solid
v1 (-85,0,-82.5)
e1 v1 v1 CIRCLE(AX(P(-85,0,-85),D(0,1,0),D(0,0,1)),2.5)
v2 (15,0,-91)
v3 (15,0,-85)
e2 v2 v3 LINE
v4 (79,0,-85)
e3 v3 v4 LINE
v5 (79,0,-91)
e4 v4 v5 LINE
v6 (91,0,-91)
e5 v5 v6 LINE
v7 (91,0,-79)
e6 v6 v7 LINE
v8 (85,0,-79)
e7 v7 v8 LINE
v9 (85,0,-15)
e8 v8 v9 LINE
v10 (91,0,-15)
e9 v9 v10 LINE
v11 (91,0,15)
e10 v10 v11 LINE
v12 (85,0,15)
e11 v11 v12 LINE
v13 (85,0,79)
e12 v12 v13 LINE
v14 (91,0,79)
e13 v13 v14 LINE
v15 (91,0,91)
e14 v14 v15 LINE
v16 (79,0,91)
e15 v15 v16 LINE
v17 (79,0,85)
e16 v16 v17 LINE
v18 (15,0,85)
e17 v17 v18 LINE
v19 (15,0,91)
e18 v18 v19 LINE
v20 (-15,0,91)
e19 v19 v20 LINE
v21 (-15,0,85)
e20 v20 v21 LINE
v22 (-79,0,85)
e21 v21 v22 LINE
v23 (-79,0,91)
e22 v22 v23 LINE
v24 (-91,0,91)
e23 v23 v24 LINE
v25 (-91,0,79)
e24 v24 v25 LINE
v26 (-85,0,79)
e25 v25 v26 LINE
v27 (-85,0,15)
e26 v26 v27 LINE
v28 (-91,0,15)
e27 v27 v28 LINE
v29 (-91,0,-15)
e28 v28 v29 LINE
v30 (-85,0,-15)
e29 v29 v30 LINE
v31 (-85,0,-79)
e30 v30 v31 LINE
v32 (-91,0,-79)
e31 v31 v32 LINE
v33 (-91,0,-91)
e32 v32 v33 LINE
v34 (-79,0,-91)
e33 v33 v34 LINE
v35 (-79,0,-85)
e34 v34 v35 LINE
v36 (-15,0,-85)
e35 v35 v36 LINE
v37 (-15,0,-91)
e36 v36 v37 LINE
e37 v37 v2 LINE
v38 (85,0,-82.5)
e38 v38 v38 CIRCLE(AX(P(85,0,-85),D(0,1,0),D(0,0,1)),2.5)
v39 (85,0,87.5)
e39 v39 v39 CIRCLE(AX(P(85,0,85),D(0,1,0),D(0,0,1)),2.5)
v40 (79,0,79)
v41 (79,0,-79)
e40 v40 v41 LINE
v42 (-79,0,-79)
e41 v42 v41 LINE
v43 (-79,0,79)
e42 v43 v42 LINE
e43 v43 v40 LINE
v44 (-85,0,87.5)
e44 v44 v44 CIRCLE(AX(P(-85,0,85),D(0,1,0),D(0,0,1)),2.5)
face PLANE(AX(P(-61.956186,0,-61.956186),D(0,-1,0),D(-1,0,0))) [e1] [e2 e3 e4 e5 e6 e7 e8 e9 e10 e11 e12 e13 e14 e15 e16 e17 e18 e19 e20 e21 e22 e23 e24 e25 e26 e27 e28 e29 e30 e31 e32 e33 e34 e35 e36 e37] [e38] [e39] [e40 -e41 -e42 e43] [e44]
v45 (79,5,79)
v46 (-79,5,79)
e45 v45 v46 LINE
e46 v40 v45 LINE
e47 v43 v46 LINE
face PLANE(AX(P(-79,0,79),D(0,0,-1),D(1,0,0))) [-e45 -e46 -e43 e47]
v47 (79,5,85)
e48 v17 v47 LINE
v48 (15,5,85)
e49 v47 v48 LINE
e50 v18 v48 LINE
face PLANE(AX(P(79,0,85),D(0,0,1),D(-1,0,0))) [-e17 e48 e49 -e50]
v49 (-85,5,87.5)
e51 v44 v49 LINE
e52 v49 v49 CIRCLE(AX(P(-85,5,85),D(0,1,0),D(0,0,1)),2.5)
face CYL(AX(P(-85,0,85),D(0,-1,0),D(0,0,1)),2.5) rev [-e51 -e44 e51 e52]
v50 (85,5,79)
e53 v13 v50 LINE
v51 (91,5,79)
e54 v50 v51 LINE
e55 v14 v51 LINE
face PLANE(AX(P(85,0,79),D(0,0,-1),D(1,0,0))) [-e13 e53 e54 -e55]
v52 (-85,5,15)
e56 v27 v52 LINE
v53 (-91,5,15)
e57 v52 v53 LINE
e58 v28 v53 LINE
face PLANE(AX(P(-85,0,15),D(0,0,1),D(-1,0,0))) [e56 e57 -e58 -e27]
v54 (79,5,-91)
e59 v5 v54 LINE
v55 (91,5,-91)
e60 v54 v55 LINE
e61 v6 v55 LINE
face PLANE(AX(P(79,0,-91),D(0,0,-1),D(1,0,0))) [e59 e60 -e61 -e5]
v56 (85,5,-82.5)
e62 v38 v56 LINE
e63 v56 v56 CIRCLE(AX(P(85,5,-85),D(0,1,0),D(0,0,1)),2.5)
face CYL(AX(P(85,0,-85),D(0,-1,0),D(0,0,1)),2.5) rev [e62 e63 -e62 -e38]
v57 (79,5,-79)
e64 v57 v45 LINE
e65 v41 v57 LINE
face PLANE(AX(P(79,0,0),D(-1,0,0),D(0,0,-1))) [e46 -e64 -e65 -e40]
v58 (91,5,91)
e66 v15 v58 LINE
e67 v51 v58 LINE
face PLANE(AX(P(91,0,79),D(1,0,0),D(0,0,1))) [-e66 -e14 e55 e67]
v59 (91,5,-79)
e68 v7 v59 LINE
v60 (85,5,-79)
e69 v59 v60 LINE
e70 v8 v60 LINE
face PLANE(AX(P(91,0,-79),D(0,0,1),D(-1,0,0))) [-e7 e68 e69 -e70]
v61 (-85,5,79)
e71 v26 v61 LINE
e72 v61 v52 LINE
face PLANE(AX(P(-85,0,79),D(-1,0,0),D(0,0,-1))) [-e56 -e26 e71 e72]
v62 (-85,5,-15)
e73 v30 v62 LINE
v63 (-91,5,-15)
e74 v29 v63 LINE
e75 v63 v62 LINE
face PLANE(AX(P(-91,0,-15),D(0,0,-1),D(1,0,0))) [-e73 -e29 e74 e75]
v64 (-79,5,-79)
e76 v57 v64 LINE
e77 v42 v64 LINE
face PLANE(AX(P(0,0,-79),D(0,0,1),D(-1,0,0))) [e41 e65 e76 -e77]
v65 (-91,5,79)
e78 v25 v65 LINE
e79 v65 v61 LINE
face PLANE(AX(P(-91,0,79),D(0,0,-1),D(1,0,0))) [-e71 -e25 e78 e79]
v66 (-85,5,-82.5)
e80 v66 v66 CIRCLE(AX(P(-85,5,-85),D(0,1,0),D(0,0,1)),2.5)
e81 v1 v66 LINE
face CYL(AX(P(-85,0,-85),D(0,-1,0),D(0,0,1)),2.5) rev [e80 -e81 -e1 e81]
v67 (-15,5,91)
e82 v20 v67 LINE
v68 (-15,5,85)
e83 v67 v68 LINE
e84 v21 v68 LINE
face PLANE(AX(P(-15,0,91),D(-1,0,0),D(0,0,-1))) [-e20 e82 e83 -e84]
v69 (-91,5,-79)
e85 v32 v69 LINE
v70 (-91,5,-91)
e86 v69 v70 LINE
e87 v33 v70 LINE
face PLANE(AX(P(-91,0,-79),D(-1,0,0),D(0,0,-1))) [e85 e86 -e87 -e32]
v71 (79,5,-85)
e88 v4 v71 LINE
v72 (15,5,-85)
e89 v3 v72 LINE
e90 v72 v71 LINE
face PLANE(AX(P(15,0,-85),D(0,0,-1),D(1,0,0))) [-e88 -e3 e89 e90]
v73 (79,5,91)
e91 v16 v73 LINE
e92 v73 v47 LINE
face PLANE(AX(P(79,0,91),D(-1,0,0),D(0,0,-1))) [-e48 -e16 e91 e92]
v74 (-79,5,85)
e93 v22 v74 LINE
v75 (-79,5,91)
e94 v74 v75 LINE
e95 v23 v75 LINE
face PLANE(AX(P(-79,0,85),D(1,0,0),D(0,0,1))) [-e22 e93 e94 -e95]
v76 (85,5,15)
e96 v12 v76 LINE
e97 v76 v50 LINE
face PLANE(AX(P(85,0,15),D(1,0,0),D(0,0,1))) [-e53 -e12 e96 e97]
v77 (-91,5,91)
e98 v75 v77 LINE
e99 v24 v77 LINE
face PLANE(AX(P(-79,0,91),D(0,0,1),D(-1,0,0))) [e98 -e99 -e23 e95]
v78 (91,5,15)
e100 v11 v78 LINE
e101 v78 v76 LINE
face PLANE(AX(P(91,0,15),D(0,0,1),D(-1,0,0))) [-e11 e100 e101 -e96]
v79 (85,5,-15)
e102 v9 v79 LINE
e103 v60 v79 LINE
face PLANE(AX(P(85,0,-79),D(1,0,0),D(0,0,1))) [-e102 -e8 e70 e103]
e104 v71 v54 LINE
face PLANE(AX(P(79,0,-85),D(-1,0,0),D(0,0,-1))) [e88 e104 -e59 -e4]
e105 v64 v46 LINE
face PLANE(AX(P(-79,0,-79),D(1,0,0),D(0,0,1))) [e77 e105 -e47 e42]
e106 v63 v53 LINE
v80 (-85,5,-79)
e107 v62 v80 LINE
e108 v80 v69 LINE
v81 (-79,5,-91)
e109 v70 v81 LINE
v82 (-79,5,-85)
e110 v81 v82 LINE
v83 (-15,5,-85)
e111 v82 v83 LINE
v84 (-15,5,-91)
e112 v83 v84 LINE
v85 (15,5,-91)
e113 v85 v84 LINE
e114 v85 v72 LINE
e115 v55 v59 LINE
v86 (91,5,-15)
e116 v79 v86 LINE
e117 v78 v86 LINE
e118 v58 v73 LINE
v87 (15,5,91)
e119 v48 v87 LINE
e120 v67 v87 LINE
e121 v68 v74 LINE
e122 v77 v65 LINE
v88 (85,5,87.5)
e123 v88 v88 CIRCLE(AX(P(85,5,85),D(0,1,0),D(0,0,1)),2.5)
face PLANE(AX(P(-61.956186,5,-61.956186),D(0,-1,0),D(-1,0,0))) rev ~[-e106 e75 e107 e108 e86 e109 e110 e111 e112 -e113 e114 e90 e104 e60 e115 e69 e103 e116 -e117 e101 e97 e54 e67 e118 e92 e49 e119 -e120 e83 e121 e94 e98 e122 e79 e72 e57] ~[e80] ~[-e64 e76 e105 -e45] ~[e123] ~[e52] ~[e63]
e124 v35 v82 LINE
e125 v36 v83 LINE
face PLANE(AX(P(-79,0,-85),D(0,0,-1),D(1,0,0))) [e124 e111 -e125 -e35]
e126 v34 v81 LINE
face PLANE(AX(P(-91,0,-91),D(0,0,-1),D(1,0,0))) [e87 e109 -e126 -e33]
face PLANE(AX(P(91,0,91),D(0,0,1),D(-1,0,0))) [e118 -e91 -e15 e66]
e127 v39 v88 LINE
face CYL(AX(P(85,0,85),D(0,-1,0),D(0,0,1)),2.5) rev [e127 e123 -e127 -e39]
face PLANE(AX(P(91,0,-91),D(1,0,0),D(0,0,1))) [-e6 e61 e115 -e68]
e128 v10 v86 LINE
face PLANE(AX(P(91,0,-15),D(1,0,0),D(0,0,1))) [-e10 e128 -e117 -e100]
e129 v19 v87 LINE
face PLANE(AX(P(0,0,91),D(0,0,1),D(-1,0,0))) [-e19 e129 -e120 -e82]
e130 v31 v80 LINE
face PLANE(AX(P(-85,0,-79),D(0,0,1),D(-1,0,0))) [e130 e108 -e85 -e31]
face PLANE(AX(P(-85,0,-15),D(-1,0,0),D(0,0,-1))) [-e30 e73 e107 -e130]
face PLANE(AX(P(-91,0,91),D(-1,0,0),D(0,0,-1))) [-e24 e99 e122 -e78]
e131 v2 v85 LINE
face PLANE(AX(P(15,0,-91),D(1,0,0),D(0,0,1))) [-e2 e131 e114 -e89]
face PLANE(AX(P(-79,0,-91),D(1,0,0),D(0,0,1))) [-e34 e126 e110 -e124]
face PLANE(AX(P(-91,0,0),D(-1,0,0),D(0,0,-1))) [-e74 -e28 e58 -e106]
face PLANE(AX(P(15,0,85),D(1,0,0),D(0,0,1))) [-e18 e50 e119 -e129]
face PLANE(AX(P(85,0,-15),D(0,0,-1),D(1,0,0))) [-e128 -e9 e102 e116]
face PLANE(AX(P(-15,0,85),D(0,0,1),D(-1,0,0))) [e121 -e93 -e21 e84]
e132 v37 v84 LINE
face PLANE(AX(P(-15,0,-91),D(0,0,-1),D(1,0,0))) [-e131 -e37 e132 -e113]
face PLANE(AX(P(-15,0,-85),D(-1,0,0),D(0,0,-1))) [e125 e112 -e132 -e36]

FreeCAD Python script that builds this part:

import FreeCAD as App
import Part
import Sketcher
from FreeCAD import Vector

doc = App.newDocument("Part")
body = doc.addObject("PartDesign::Body", "Body")

sketch1 = doc.addObject("Sketcher::SketchObject", "Sketch")
body.addObject(sketch1)
sketch1.AttachmentSupport = (doc.XZ_Plane, [""])
sketch1.MapMode = "FlatFace"
sketch1.addGeometry([
    Part.LineSegment(Vector(15, -91, 0), Vector(-15, -91, 0)),
    Part.LineSegment(Vector(-15, -91, 0), Vector(-15, -85, 0)),
    Part.LineSegment(Vector(-15, -85, 0), Vector(-79, -85, 0)),
    Part.LineSegment(Vector(-79, -85, 0), Vector(-79, -91, 0)),
    Part.LineSegment(Vector(-79, -91, 0), Vector(-91, -91, 0)),
    Part.LineSegment(Vector(-91, -91, 0), Vector(-91, -79, 0)),
    Part.LineSegment(Vector(-91, -79, 0), Vector(-85, -79, 0)),
    Part.LineSegment(Vector(-85, -79, 0), Vector(-85, -15, 0)),
    Part.LineSegment(Vector(-85, -15, 0), Vector(-91, -15, 0)),
    Part.LineSegment(Vector(-91, -15, 0), Vector(-91, 15, 0)),
    Part.LineSegment(Vector(-91, 15, 0), Vector(-85, 15, 0)),
    Part.LineSegment(Vector(-85, 15, 0), Vector(-85, 79, 0)),
    Part.LineSegment(Vector(-85, 79, 0), Vector(-91, 79, 0)),
    Part.LineSegment(Vector(-91, 79, 0), Vector(-91, 91, 0)),
    Part.LineSegment(Vector(-91, 91, 0), Vector(-79, 91, 0)),
    Part.LineSegment(Vector(-79, 91, 0), Vector(-79, 85, 0)),
    Part.LineSegment(Vector(-79, 85, 0), Vector(-15, 85, 0)),
    Part.LineSegment(Vector(-15, 85, 0), Vector(-15, 91, 0)),
    Part.LineSegment(Vector(-15, 91, 0), Vector(15, 91, 0)),
    Part.LineSegment(Vector(15, 91, 0), Vector(15, 85, 0)),
    Part.LineSegment(Vector(15, 85, 0), Vector(79, 85, 0)),
    Part.LineSegment(Vector(79, 85, 0), Vector(79, 91, 0)),
    Part.LineSegment(Vector(79, 91, 0), Vector(91, 91, 0)),
    Part.LineSegment(Vector(91, 91, 0), Vector(91, 79, 0)),
    Part.LineSegment(Vector(91, 79, 0), Vector(85, 79, 0)),
    Part.LineSegment(Vector(85, 79, 0), Vector(85, 15, 0)),
    Part.LineSegment(Vector(85, 15, 0), Vector(91, 15, 0)),
    Part.LineSegment(Vector(91, 15, 0), Vector(91, -15, 0)),
    Part.LineSegment(Vector(91, -15, 0), Vector(85, -15, 0)),
    Part.LineSegment(Vector(85, -15, 0), Vector(85, -79, 0)),
    Part.LineSegment(Vector(85, -79, 0), Vector(91, -79, 0)),
    Part.LineSegment(Vector(91, -79, 0), Vector(91, -91, 0)),
    Part.LineSegment(Vector(91, -91, 0), Vector(79, -91, 0)),
    Part.LineSegment(Vector(79, -91, 0), Vector(79, -85, 0)),
    Part.LineSegment(Vector(79, -85, 0), Vector(15, -85, 0)),
    Part.LineSegment(Vector(15, -85, 0), Vector(15, -91, 0)),
    Part.LineSegment(Vector(-79, -79, 0), Vector(79, -79, 0)),
    Part.LineSegment(Vector(79, -79, 0), Vector(79, 79, 0)),
    Part.LineSegment(Vector(79, 79, 0), Vector(-79, 79, 0)),
    Part.LineSegment(Vector(-79, 79, 0), Vector(-79, -79, 0)),
    Part.Circle(Vector(85, -85, 0), Vector(0, 0, 1), 2.5),
    Part.Circle(Vector(-85, -85, 0), Vector(0, 0, 1), 2.5),
    Part.Circle(Vector(85, 85, 0), Vector(0, 0, 1), 2.5),
    Part.Circle(Vector(-85, 85, 0), Vector(0, 0, 1), 2.5),
], False)
sketch1.addConstraint([
    Sketcher.Constraint("Coincident", 0, 2, 1, 1),
    Sketcher.Constraint("Coincident", 1, 2, 2, 1),
    Sketcher.Constraint("Coincident", 2, 2, 3, 1),
    Sketcher.Constraint("Coincident", 3, 2, 4, 1),
    Sketcher.Constraint("Coincident", 4, 2, 5, 1),
    Sketcher.Constraint("Coincident", 5, 2, 6, 1),
    Sketcher.Constraint("Coincident", 6, 2, 7, 1),
    Sketcher.Constraint("Coincident", 7, 2, 8, 1),
    Sketcher.Constraint("Coincident", 8, 2, 9, 1),
    Sketcher.Constraint("Coincident", 9, 2, 10, 1),
    Sketcher.Constraint("Coincident", 10, 2, 11, 1),
    Sketcher.Constraint("Coincident", 11, 2, 12, 1),
    Sketcher.Constraint("Coincident", 12, 2, 13, 1),
    Sketcher.Constraint("Coincident", 13, 2, 14, 1),
    Sketcher.Constraint("Coincident", 14, 2, 15, 1),
    Sketcher.Constraint("Coincident", 15, 2, 16, 1),
    Sketcher.Constraint("Coincident", 16, 2, 17, 1),
    Sketcher.Constraint("Coincident", 17, 2, 18, 1),
    Sketcher.Constraint("Coincident", 18, 2, 19, 1),
    Sketcher.Constraint("Coincident", 19, 2, 20, 1),
    Sketcher.Constraint("Coincident", 20, 2, 21, 1),
    Sketcher.Constraint("Coincident", 21, 2, 22, 1),
    Sketcher.Constraint("Coincident", 22, 2, 23, 1),
    Sketcher.Constraint("Coincident", 23, 2, 24, 1),
    Sketcher.Constraint("Coincident", 24, 2, 25, 1),
    Sketcher.Constraint("Coincident", 25, 2, 26, 1),
    Sketcher.Constraint("Coincident", 26, 2, 27, 1),
    Sketcher.Constraint("Coincident", 27, 2, 28, 1),
    Sketcher.Constraint("Coincident", 28, 2, 29, 1),
    Sketcher.Constraint("Coincident", 29, 2, 30, 1),
    Sketcher.Constraint("Coincident", 30, 2, 31, 1),
    Sketcher.Constraint("Coincident", 31, 2, 32, 1),
    Sketcher.Constraint("Coincident", 32, 2, 33, 1),
    Sketcher.Constraint("Coincident", 33, 2, 34, 1),
    Sketcher.Constraint("Coincident", 34, 2, 35, 1),
    Sketcher.Constraint("Coincident", 35, 2, 0, 1),
    Sketcher.Constraint("Coincident", 36, 2, 37, 1),
    Sketcher.Constraint("Coincident", 37, 2, 38, 1),
    Sketcher.Constraint("Coincident", 38, 2, 39, 1),
    Sketcher.Constraint("Coincident", 39, 2, 36, 1),
    Sketcher.Constraint("Horizontal", 0),
    Sketcher.Constraint("Vertical", 1),
    Sketcher.Constraint("Horizontal", 2),
    Sketcher.Constraint("Vertical", 3),
    Sketcher.Constraint("Horizontal", 4),
    Sketcher.Constraint("Vertical", 5),
    Sketcher.Constraint("Horizontal", 6),
    Sketcher.Constraint("Vertical", 7),
    Sketcher.Constraint("Horizontal", 8),
    Sketcher.Constraint("Vertical", 9),
    Sketcher.Constraint("Horizontal", 10),
    Sketcher.Constraint("Vertical", 11),
    Sketcher.Constraint("Horizontal", 12),
    Sketcher.Constraint("Vertical", 13),
    Sketcher.Constraint("Horizontal", 14),
    Sketcher.Constraint("Vertical", 15),
    Sketcher.Constraint("Horizontal", 16),
    Sketcher.Constraint("Vertical", 17),
    Sketcher.Constraint("Horizontal", 18),
    Sketcher.Constraint("Vertical", 19),
    Sketcher.Constraint("Horizontal", 20),
    Sketcher.Constraint("Vertical", 21),
    Sketcher.Constraint("Horizontal", 22),
    Sketcher.Constraint("Vertical", 23),
    Sketcher.Constraint("Horizontal", 24),
    Sketcher.Constraint("Vertical", 25),
    Sketcher.Constraint("Horizontal", 26),
    Sketcher.Constraint("Vertical", 27),
    Sketcher.Constraint("Horizontal", 28),
    Sketcher.Constraint("Vertical", 29),
    Sketcher.Constraint("Horizontal", 30),
    Sketcher.Constraint("Vertical", 31),
    Sketcher.Constraint("Horizontal", 32),
    Sketcher.Constraint("Vertical", 33),
    Sketcher.Constraint("Horizontal", 34),
    Sketcher.Constraint("Vertical", 35),
    Sketcher.Constraint("Horizontal", 36),
    Sketcher.Constraint("Vertical", 37),
    Sketcher.Constraint("Horizontal", 38),
    Sketcher.Constraint("Vertical", 39),
    Sketcher.Constraint("Equal", 40, 41),
    Sketcher.Constraint("Equal", 41, 42),
    Sketcher.Constraint("Equal", 42, 43),
    Sketcher.Constraint("Symmetric", 41, 3, 42, 3, -1, 1),
    Sketcher.Constraint("Symmetric", 40, 3, 43, 3, -1, 1),
    Sketcher.Constraint("Symmetric", 0, 2, 18, 2, -1, 1),
    Sketcher.Constraint("Symmetric", 2, 2, 20, 2, -1, 1),
    Sketcher.Constraint("Symmetric", 4, 2, 22, 2, -1, 1),
    Sketcher.Constraint("Symmetric", 6, 2, 24, 2, -1, 1),
    Sketcher.Constraint("Symmetric", 8, 2, 26, 2, -1, 1),
    Sketcher.Constraint("Symmetric", 10, 2, 28, 2, -1, 1),
    Sketcher.Constraint("Symmetric", 12, 2, 30, 2, -1, 1),
    Sketcher.Constraint("Symmetric", 14, 2, 32, 2, -1, 1),
    Sketcher.Constraint("Symmetric", 16, 2, 34, 2, -1, 1),
    Sketcher.Constraint("Symmetric", 36, 2, 38, 2, -1, 1),
    Sketcher.Constraint("Symmetric", 40, 3, 41, 3, -2),
    Sketcher.Constraint("Symmetric", 16, 2, 19, 2, -2),
    Sketcher.Constraint("Symmetric", 14, 2, 21, 2, -2),
    Sketcher.Constraint("Symmetric", 12, 2, 23, 2, -2),
    Sketcher.Constraint("Symmetric", 10, 2, 25, 2, -2),
    Sketcher.Constraint("Horizontal", 41, 3, 1, 2),
    Sketcher.Constraint("Horizontal", 0, 2, 3, 2),
    Sketcher.Constraint("Horizontal", 30, 2, 36, 2),
    Sketcher.Constraint("Vertical", 43, 3, 6, 2),
    Sketcher.Constraint("Vertical", 5, 2, 8, 2),
    Sketcher.Constraint("Vertical", 33, 2, 36, 2),
    Sketcher.Constraint("Equal", 30, 1),
    Sketcher.Constraint("Equal", 32, 5),
    Sketcher.Constraint("Equal", 34, 7),
    Sketcher.Constraint("Equal", 18, 9),
    Sketcher.Constraint("Diameter", 40, 5.0),
    Sketcher.Constraint("DistanceX", 0, 2, 0, 1, 30.0),
    Sketcher.Constraint("DistanceX", 2, 2, 2, 1, 64.0),
    Sketcher.Constraint("DistanceX", 4, 2, 4, 1, 12.0),
    Sketcher.Constraint("DistanceX", 6, 1, 6, 2, 6.0),
])
pad1 = doc.addObject("PartDesign::Pad", "Pad")
body.addObject(pad1)
pad1.Profile = sketch1
pad1.Length = 5
pad1.Reversed = True

doc.recompute()
